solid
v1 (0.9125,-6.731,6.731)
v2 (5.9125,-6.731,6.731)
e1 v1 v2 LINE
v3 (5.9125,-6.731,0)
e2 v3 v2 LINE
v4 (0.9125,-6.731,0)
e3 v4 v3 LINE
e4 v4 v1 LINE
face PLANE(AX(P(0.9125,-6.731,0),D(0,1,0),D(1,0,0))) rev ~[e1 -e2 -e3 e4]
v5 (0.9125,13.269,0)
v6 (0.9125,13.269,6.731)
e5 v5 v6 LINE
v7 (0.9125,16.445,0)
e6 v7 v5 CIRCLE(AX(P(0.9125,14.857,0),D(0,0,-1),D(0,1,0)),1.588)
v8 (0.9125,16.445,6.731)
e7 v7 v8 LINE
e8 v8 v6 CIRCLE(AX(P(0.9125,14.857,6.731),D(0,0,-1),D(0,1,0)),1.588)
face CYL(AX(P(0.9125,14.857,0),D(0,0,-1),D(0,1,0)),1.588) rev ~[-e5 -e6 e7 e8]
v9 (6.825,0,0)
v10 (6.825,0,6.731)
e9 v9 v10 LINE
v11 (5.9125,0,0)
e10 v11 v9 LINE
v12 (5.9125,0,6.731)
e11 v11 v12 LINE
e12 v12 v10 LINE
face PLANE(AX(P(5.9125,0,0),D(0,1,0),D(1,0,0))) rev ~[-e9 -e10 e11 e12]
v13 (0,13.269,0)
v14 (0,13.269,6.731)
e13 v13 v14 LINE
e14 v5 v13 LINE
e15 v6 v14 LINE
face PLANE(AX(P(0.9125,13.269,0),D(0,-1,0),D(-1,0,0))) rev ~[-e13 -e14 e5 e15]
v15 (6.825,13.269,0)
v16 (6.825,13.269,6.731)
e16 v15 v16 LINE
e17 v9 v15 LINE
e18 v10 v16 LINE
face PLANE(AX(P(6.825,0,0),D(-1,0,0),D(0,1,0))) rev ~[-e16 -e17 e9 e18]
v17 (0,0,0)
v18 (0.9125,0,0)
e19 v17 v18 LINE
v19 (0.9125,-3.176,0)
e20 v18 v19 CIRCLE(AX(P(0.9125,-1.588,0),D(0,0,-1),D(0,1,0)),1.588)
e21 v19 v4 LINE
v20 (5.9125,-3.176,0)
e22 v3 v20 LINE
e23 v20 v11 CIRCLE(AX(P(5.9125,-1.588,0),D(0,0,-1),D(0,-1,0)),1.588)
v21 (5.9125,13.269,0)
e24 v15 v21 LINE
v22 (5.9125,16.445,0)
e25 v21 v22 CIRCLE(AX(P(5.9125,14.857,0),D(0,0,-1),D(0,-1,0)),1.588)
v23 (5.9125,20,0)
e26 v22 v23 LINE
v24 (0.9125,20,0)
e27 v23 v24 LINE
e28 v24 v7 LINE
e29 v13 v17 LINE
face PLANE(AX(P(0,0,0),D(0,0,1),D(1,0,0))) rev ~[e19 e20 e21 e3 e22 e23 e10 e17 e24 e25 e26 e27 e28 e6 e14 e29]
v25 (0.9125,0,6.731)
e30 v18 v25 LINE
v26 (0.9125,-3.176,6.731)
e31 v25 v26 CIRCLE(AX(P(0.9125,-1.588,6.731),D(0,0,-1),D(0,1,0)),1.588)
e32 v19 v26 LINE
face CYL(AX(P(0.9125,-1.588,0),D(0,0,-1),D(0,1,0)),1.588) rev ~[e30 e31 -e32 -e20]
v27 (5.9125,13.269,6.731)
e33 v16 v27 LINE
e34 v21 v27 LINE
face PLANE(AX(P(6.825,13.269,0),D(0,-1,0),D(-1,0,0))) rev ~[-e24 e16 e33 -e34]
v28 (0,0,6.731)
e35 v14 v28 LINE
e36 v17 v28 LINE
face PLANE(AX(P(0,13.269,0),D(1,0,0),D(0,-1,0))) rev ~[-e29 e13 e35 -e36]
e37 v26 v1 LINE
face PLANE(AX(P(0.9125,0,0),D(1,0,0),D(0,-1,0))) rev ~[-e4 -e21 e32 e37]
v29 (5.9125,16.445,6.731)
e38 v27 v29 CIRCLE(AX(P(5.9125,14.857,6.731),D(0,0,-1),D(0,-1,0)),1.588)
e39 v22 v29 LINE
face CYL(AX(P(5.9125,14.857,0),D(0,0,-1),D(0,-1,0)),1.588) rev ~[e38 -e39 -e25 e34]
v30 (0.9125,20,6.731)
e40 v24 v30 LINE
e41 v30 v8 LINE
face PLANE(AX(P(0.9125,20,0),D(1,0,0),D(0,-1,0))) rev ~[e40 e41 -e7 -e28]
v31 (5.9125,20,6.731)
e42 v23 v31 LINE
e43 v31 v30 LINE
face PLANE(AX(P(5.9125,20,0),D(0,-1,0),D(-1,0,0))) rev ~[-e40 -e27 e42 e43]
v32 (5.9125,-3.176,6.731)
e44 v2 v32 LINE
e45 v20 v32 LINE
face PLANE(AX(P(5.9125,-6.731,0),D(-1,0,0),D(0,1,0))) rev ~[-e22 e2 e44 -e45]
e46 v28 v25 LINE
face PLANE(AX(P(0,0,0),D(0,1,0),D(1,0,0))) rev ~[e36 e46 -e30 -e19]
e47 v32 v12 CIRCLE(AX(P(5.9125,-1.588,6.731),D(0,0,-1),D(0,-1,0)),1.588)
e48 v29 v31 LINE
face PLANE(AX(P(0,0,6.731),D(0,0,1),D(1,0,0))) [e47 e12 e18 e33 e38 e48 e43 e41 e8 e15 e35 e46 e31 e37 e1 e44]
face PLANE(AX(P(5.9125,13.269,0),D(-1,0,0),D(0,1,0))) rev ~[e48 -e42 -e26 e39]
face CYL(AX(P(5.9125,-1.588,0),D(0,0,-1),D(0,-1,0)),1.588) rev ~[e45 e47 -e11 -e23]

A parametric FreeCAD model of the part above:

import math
import FreeCAD as App
import Part
import Sketcher

V = App.Vector
Q = App.Units.Quantity

doc = App.newDocument("Part")
body = doc.addObject("PartDesign::Body", "Body")

sketch1 = doc.addObject("Sketcher::SketchObject", "Sketch")
body.addObject(sketch1)
sketch1.AttachmentSupport = (doc.XY_Plane, [""])
sketch1.MapMode = "FlatFace"
sketch1.addGeometry([
    Part.LineSegment(V(0, 13.3, 0), V(0, 0, 0)),
    Part.LineSegment(V(0, 0, 0), V(0.9, 0, 0)),
    Part.LineSegment(V(0.9, 0, 0), V(0.9, -6.7, 0)),
    Part.LineSegment(V(0.9, -6.7, 0), V(5.9, -6.7, 0)),
    Part.LineSegment(V(5.9, -6.7, 0), V(5.9, 0, 0)),
    Part.LineSegment(V(5.9, 0, 0), V(6.8, 0, 0)),
    Part.LineSegment(V(6.8, 0, 0), V(6.8, 13.3, 0)),
    Part.LineSegment(V(6.8, 13.3, 0), V(5.9, 13.3, 0)),
    Part.LineSegment(V(5.9, 13.3, 0), V(5.9, 20, 0)),
    Part.LineSegment(V(5.9, 20, 0), V(0.9, 20, 0)),
    Part.LineSegment(V(0.9, 20, 0), V(0.9, 13.3, 0)),
    Part.LineSegment(V(0.9, 13.3, 0), V(0, 13.3, 0)),
], False)
sketch1.addConstraint([
    Sketcher.Constraint("Coincident", 0, 2, 1, 1),
    Sketcher.Constraint("Coincident", 1, 2, 2, 1),
    Sketcher.Constraint("Coincident", 2, 2, 3, 1),
    Sketcher.Constraint("Coincident", 3, 2, 4, 1),
    Sketcher.Constraint("Coincident", 4, 2, 5, 1),
    Sketcher.Constraint("Coincident", 5, 2, 6, 1),
    Sketcher.Constraint("Coincident", 6, 2, 7, 1),
    Sketcher.Constraint("Coincident", 7, 2, 8, 1),
    Sketcher.Constraint("Coincident", 8, 2, 9, 1),
    Sketcher.Constraint("Coincident", 9, 2, 10, 1),
    Sketcher.Constraint("Coincident", 10, 2, 11, 1),
    Sketcher.Constraint("Coincident", 11, 2, 0, 1),
    Sketcher.Constraint("Vertical", 0),
    Sketcher.Constraint("Horizontal", 1),
    Sketcher.Constraint("Vertical", 2),
    Sketcher.Constraint("Horizontal", 3),
    Sketcher.Constraint("Vertical", 4),
    Sketcher.Constraint("Horizontal", 5),
    Sketcher.Constraint("Vertical", 6),
    Sketcher.Constraint("Horizontal", 7),
    Sketcher.Constraint("Vertical", 8),
    Sketcher.Constraint("Horizontal", 9),
    Sketcher.Constraint("Vertical", 10),
    Sketcher.Constraint("Horizontal", 11),
    Sketcher.Constraint("Coincident", 0, 2, -1, 1),
    Sketcher.Constraint("PointOnObject", 4, 2, -1),
    Sketcher.Constraint("Horizontal", 7, 2, 10, 2),
    Sketcher.Constraint("Vertical", 4, 2, 7, 2),
    Sketcher.Constraint("Vertical", 2, 2, 9, 2),
    Sketcher.Constraint("Equal", 1, 5),
    Sketcher.Constraint("Equal", 4, 8),
    Sketcher.Constraint("DistanceX", 3, 1, 3, 2, Q("5 mm")),
    Sketcher.Constraint("DistanceY", 0, 2, 0, 1, Q("13.269 mm")),
    Sketcher.Constraint("DistanceY", 2, 2, 2, 1, Q("6.731 mm")),
    Sketcher.Constraint("DistanceX", -1, 1, 5, 2, Q("6.825 mm")),
])
pad1 = doc.addObject("PartDesign::Pad", "Pad")
body.addObject(pad1)
pad1.Profile = sketch1
pad1.Length = 6.731

sketch2 = doc.addObject("Sketcher::SketchObject", "Sketch001")
body.addObject(sketch2)
sketch2.AttachmentSupport = (doc.XY_Plane, [""])
sketch2.MapMode = "FlatFace"
sketch2.addGeometry([
    Part.LineSegment(V(0.9, 13.3, 0), V(0.9, 16.4, 0)),
    Part.ArcOfCircle(Part.Circle(V(0.9, 14.9, 0), V(0, 0, 1), 1.6), math.radians(-90), math.radians(90)),
    Part.LineSegment(V(5.9, 16.4, 0), V(5.9, 13.3, 0)),
    Part.ArcOfCircle(Part.Circle(V(5.9, 14.9, 0), V(0, 0, 1), 1.6), math.radians(90), math.radians(270)),
    Part.LineSegment(V(5.9, 0, 0), V(5.9, -3.2, 0)),
    Part.ArcOfCircle(Part.Circle(V(5.9, -1.6, 0), V(0, 0, 1), 1.6), math.radians(90), math.radians(270)),
    Part.LineSegment(V(0.9, -3.2, 0), V(0.9, 0, 0)),
    Part.ArcOfCircle(Part.Circle(V(0.9, -1.6, 0), V(0, 0, 1), 1.6), math.radians(-90), math.radians(90)),
], False)
sketch2.addConstraint([
    Sketcher.Constraint("Coincident", 0, 1, 1, 1),
    Sketcher.Constraint("Coincident", 1, 2, 0, 2),
    Sketcher.Constraint("Coincident", 2, 1, 3, 1),
    Sketcher.Constraint("Coincident", 3, 2, 2, 2),
    Sketcher.Constraint("Coincident", 4, 1, 5, 1),
    Sketcher.Constraint("Coincident", 5, 2, 4, 2),
    Sketcher.Constraint("Coincident", 6, 1, 7, 1),
    Sketcher.Constraint("Coincident", 7, 2, 6, 2),
    Sketcher.Constraint("Vertical", 0),
    Sketcher.Constraint("Vertical", 2),
    Sketcher.Constraint("Vertical", 4),
    Sketcher.Constraint("Vertical", 6),
    Sketcher.Constraint("Equal", 1, 3),
    Sketcher.Constraint("Equal", 3, 5),
    Sketcher.Constraint("Equal", 5, 7),
    Sketcher.Constraint("PointOnObject", 4, 1, -1),
    Sketcher.Constraint("PointOnObject", 7, 2, -1),
    Sketcher.Constraint("Horizontal", 1, 3, 3, 3),
    Sketcher.Constraint("Vertical", 3, 3, 5, 3),
    Sketcher.Constraint("Vertical", 1, 3, 7, 3),
    Sketcher.Constraint("Vertical", 7, 3, 0, 1),
    Sketcher.Constraint("Vertical", 5, 3, 2, 1),
    Sketcher.Constraint("Vertical", 3, 2, 4, 1),
    Sketcher.Constraint("Vertical", 1, 2, 6, 1),
    Sketcher.Constraint("Radius", 1, Q("1.588 mm")),
    Sketcher.Constraint("DistanceX", 1, 3, 3, 3, Q("5 mm")),
    Sketcher.Constraint("DistanceY", -1, 1, 1, 3, Q("14.857 mm")),
    Sketcher.Constraint("DistanceX", -1, 1, 1, 3, Q("0.9125 mm")),
])
pocket1 = doc.addObject("PartDesign::Pocket", "Pocket")
body.addObject(pocket1)
pocket1.Profile = sketch2
pocket1.Type = "UpToFirst"
pocket1.Reversed = True

doc.recompute()
